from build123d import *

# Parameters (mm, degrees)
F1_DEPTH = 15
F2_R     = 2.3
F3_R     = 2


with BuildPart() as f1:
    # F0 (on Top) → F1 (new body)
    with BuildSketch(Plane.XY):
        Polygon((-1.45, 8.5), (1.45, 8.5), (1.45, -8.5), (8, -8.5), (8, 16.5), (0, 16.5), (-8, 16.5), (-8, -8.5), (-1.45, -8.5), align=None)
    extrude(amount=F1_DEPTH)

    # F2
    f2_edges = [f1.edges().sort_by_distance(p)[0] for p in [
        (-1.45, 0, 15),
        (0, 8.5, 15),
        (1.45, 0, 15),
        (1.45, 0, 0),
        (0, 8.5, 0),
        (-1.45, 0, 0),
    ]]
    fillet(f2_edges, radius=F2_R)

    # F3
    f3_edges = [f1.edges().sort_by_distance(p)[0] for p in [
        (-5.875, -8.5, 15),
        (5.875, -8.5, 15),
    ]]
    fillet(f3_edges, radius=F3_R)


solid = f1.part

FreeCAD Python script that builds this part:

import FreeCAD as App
import Part
import Sketcher
from FreeCAD import Vector
Q = App.Units.Quantity


def edges_at(feature, points):
    """Names of the edges that pass closest to the given points."""
    edges = feature.Shape.Edges
    near = lambda p: min(range(len(edges)), key=lambda i: edges[i].distToShape(Part.Vertex(*p))[0])
    return sorted({f"Edge{near(p) + 1}" for p in points})


def add_polygon(sketch, points):
    """Adds a closed chain of lines whose ends are joined by coincident constraints."""
    first, n = sketch.GeometryCount, len(points)
    for a, b in zip(points, points[1:] + points[:1]):
        sketch.addGeometry(Part.LineSegment(App.Vector(*a, 0), App.Vector(*b, 0)), False)
    for i in range(n):
        sketch.addConstraint(Sketcher.Constraint("Coincident", first + i, 2, first + (i + 1) % n, 1))

doc = App.newDocument("Part")
body = doc.addObject("PartDesign::Body", "Body")

# Sketch on XY plane
sketch1 = body.newObject("Sketcher::SketchObject", "Sketch")
sketch1.AttachmentSupport = (doc.getObject("XY_Plane"), [""])
sketch1.MapMode = "FlatFace"
add_polygon(sketch1, [(-1.4, 8.5), (1.4, 8.5), (1.4, -8.5), (8, -8.5), (8, 16.5), (-8, 16.5), (-8, -8.5), (-1.4, -8.5)])  # lines 0-7
sketch1.addConstraint(Sketcher.Constraint("Horizontal", 0))
sketch1.addConstraint(Sketcher.Constraint("Vertical", 1))
sketch1.addConstraint(Sketcher.Constraint("Horizontal", 2))
sketch1.addConstraint(Sketcher.Constraint("Vertical", 3))
sketch1.addConstraint(Sketcher.Constraint("Horizontal", 4))
sketch1.addConstraint(Sketcher.Constraint("Vertical", 5))
sketch1.addConstraint(Sketcher.Constraint("Horizontal", 6))
sketch1.addConstraint(Sketcher.Constraint("Vertical", 7))
sketch1.addConstraint(Sketcher.Constraint("Symmetric", 0, 2, 6, 2, -1, 1))
sketch1.addConstraint(Sketcher.Constraint("Symmetric", 2, 2, 5, 2, -2))
sketch1.addConstraint(Sketcher.Constraint("DistanceX", 4, 2, 4, 1, Q("16 mm")))
sketch1.addConstraint(Sketcher.Constraint("DistanceY", 1, 2, 1, 1, Q("17 mm")))
sketch1.addConstraint(Sketcher.Constraint("DistanceY", 3, 1, 3, 2, Q("25 mm")))
sketch1.addConstraint(Sketcher.Constraint("DistanceX", 0, 1, 0, 2, Q("2.9 mm")))
pad1 = body.newObject("PartDesign::Pad", "Pad")
pad1.Profile = sketch1
pad1.Length = 15
doc.recompute()

fillet = body.newObject("PartDesign::Fillet", "Fillet")
fillet.Base = (pad1, edges_at(pad1, [
    (-1.45, 0, 15),
    (0, 8.5, 15),
    (1.45, 0, 15),
    (1.45, 0, 0),
    (0, 8.5, 0),
    (-1.45, 0, 0),
]))
fillet.Radius = 2.3
doc.recompute()

fillet2 = body.newObject("PartDesign::Fillet", "Fillet001")
fillet2.Base = (fillet, edges_at(fillet, [(-5.875, -8.5, 15), (5.875, -8.5, 15)]))
fillet2.Radius = 2

doc.recompute()
